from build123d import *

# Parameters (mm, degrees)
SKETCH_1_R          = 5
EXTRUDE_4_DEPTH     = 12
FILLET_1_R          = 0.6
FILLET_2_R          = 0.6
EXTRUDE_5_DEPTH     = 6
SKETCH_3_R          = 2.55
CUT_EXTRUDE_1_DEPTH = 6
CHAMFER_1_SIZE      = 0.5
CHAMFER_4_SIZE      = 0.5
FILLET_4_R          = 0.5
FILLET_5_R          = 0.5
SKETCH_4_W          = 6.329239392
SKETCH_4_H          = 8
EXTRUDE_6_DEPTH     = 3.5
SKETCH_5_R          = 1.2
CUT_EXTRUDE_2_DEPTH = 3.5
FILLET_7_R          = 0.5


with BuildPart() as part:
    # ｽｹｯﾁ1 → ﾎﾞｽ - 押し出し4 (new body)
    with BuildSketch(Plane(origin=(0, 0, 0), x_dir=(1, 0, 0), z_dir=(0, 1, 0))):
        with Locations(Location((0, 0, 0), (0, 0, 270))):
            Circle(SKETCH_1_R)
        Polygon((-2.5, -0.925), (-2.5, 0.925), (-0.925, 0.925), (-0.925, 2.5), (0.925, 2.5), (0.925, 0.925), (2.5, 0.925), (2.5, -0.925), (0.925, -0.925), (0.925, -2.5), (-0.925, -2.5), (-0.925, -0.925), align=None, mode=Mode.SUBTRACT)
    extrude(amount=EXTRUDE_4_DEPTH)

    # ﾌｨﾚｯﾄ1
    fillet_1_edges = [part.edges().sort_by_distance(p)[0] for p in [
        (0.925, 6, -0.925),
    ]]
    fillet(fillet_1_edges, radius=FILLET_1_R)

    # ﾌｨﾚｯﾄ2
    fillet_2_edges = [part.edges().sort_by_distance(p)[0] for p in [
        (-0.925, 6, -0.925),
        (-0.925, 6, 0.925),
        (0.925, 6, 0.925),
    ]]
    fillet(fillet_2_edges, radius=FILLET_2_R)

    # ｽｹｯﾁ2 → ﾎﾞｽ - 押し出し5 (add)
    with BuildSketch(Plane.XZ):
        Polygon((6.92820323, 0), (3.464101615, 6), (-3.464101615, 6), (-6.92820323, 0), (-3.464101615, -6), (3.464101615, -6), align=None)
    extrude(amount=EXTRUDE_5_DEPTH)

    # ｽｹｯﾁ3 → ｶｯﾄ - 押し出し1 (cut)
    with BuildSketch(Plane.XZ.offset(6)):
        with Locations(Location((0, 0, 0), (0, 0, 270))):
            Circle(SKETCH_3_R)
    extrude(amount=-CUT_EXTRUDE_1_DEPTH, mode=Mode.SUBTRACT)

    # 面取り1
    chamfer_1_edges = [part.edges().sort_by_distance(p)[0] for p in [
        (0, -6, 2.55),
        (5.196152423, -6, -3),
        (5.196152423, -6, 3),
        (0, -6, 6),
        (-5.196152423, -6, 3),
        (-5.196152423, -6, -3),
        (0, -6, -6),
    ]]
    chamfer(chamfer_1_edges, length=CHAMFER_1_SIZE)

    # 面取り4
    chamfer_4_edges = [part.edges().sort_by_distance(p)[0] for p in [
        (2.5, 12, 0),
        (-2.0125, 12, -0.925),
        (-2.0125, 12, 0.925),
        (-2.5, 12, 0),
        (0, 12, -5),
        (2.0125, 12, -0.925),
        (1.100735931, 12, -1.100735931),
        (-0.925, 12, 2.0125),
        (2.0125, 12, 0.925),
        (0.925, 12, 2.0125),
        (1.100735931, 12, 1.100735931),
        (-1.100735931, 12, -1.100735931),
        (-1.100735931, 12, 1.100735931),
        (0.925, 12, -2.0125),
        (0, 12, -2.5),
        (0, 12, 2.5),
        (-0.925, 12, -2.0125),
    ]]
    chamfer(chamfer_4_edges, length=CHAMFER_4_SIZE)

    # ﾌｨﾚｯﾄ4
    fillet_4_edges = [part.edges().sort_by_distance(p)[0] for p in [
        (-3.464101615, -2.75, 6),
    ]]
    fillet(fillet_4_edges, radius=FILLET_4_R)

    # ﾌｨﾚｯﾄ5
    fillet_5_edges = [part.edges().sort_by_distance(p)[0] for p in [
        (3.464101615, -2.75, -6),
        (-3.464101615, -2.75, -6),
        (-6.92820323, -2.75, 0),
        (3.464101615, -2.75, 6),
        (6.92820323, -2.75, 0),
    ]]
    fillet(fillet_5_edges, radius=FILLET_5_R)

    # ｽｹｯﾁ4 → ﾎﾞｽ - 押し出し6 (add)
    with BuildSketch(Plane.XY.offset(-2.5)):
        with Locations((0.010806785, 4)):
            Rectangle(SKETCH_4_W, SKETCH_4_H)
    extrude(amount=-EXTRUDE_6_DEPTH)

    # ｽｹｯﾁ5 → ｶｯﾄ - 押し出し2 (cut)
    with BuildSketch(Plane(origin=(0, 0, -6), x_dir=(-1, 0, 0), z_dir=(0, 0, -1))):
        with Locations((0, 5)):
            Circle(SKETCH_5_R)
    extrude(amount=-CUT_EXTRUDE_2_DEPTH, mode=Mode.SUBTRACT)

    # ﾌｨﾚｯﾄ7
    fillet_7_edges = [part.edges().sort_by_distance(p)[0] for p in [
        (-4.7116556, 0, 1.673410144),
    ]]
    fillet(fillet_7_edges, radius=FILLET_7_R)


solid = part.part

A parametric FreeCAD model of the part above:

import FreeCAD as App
import Part
import Sketcher
Q = App.Units.Quantity


def edges_at(feature, points):
    """Names of the edges that pass closest to the given points."""
    edges = feature.Shape.Edges
    near = lambda p: min(range(len(edges)), key=lambda i: edges[i].distToShape(Part.Vertex(*p))[0])
    return sorted({f"Edge{near(p) + 1}" for p in points})


def add_polygon(sketch, points):
    """Adds a closed chain of lines whose ends are joined by coincident constraints."""
    first, n = sketch.GeometryCount, len(points)
    for a, b in zip(points, points[1:] + points[:1]):
        sketch.addGeometry(Part.LineSegment(App.Vector(*a, 0), App.Vector(*b, 0)), False)
    for i in range(n):
        sketch.addConstraint(Sketcher.Constraint("Coincident", first + i, 2, first + (i + 1) % n, 1))

doc = App.newDocument("Part")
params = doc.addObject("Spreadsheet::Sheet", "Params")
for row, (alias, value) in enumerate([
    ("sketch1_diameter", "10 mm"),
    ("sketch1_width", "1.85 mm"),
    ("pad1_length", "12 mm"),
    ("fillet_radius", "0.6 mm"),
    ("fillet2_radius", "0.6 mm"),
    ("pad2_length", "6 mm"),
    ("sketch3_diameter", "5.1 mm"),
    ("pocket1_length", "6 mm"),
    ("chamfer_size", "0.5 mm"),
    ("chamfer2_size", "0.5 mm"),
    ("fillet3_radius", "0.5 mm"),
    ("fillet4_radius", "0.5 mm"),
    ("sketch4_height", "8 mm"),
    ("pad3_length", "3.5 mm"),
    ("sketch5_diameter", "2.4 mm"),
    ("pocket2_length", "3.5 mm"),
    ("fillet5_radius", "0.5 mm"),
], start=1):
    params.set(f"A{row}", alias)
    params.set(f"B{row}", "=" + value)
    params.setAlias(f"B{row}", alias)

body = doc.addObject("PartDesign::Body", "Body")

# Sketch on XZ plane
sketch1 = doc.addObject("Sketcher::SketchObject", "Sketch")
body.addObject(sketch1)
sketch1.AttachmentSupport = (doc.XZ_Plane, [""])
sketch1.MapMode = "FlatFace"
sketch1.addGeometry(Part.Circle(App.Vector(0, 0, 0), App.Vector(0, 0, 1), 5), False)  # 0
add_polygon(sketch1, [(-0.9, 0.9), (-2.5, 0.9), (-2.5, -0.9), (-0.9, -0.9), (-0.9, -2.5), (0.9, -2.5), (0.9, -0.9), (2.5, -0.9), (2.5, 0.9), (0.9, 0.9), (0.9, 2.5), (-0.9, 2.5)])  # lines 1-12
sketch1.addConstraint([
    Sketcher.Constraint("Horizontal", 1),
    Sketcher.Constraint("Vertical", 2),
    Sketcher.Constraint("Horizontal", 3),
    Sketcher.Constraint("Vertical", 4),
    Sketcher.Constraint("Horizontal", 5),
    Sketcher.Constraint("Vertical", 6),
    Sketcher.Constraint("Horizontal", 7),
    Sketcher.Constraint("Vertical", 8),
    Sketcher.Constraint("Horizontal", 9),
    Sketcher.Constraint("Vertical", 10),
    Sketcher.Constraint("Horizontal", 11),
    Sketcher.Constraint("Vertical", 12),
    Sketcher.Constraint("Coincident", 0, 3, -1, 1),
    Sketcher.Constraint("Symmetric", 1, 2, 7, 2, -1, 1),
    Sketcher.Constraint("Symmetric", 3, 2, 9, 2, -1, 1),
    Sketcher.Constraint("Symmetric", 5, 2, 11, 2, -1, 1),
    Sketcher.Constraint("Symmetric", 3, 2, 6, 2, -2),
    Sketcher.Constraint("Equal", 11, 2),
    Sketcher.Constraint("Equal", 9, 4),
    Sketcher.Constraint("Diameter", 0, 10.0),
    Sketcher.Constraint("DistanceX", 5, 1, 5, 2, 1.85),
    Sketcher.Constraint("DistanceX", 1, 2, -1, 1, 2.5),
])
sketch1.setExpression("Constraints[31]", "Params.sketch1_diameter")
sketch1.setExpression("Constraints[32]", "Params.sketch1_width")
pad1 = doc.addObject("PartDesign::Pad", "Pad")
body.addObject(pad1)
pad1.Profile = sketch1
pad1.setExpression("Length", "Params.pad1_length")
pad1.Reversed = True
doc.recompute()

fillet = doc.addObject("PartDesign::Fillet", "Fillet")
body.addObject(fillet)
fillet.Base = (pad1, edges_at(pad1, [(0.925, 6, -0.925)]))
fillet.setExpression("Radius", "Params.fillet_radius")
doc.recompute()

fillet2 = doc.addObject("PartDesign::Fillet", "Fillet001")
body.addObject(fillet2)
fillet2.Base = (fillet, edges_at(fillet, [(-0.925, 6, -0.925), (-0.925, 6, 0.925), (0.925, 6, 0.925)]))
fillet2.setExpression("Radius", "Params.fillet2_radius")

# Sketch on XZ plane
sketch2 = doc.addObject("Sketcher::SketchObject", "Sketch001")
body.addObject(sketch2)
sketch2.AttachmentSupport = (doc.XZ_Plane, [""])
sketch2.MapMode = "FlatFace"
add_polygon(sketch2, [(7, 0), (3, 6), (-3, 6), (-7, 0), (-3, -6), (3, -6)])  # lines 0-5
sketch2.addConstraint([
    Sketcher.Constraint("Horizontal", 1),
    Sketcher.Constraint("Horizontal", 4),
    Sketcher.Constraint("Symmetric", 0, 2, 3, 2, -1, 1),
    Sketcher.Constraint("Symmetric", 2, 2, 5, 2, -1, 1),
    Sketcher.Constraint("PointOnObject", 2, 2, -1),
    Sketcher.Constraint("Parallel", 2, 5),
    Sketcher.Constraint("Vertical", 1, 2, 3, 2),
    Sketcher.Constraint("Angle", 0, Q("120 deg")),
    Sketcher.Constraint("DistanceY", -1, 1, 0, 2, 6.0),
    Sketcher.Constraint("DistanceX", -1, 1, 0, 2, 3.464102),
])
pad2 = doc.addObject("PartDesign::Pad", "Pad001")
body.addObject(pad2)
pad2.Profile = sketch2
pad2.setExpression("Length", "Params.pad2_length")

# Sketch on XZ plane
sketch3 = doc.addObject("Sketcher::SketchObject", "Sketch002")
body.addObject(sketch3)
sketch3.AttachmentSupport = (doc.XZ_Plane, [""])
sketch3.MapMode = "FlatFace"
sketch3.AttachmentOffset = App.Placement(App.Vector(0, 0, 6), App.Rotation())
sketch3.addGeometry(Part.Circle(App.Vector(0, 0, 0), App.Vector(0, 0, 1), 2.5), False)
sketch3.addConstraint([
    Sketcher.Constraint("Coincident", 0, 3, -1, 1),
    Sketcher.Constraint("Diameter", 0, 5.1),
])
sketch3.setExpression("Constraints[1]", "Params.sketch3_diameter")
pocket1 = doc.addObject("PartDesign::Pocket", "Pocket")
body.addObject(pocket1)
pocket1.Profile = sketch3
pocket1.setExpression("Length", "Params.pocket1_length")
doc.recompute()

chamfer = doc.addObject("PartDesign::Chamfer", "Chamfer")
body.addObject(chamfer)
chamfer.Base = (pocket1, edges_at(pocket1, [
    (0, -6, 2.55),
    (5.196, -6, -3),
    (5.196, -6, 3),
    (0, -6, 6),
    (-5.196, -6, 3),
    (-5.196, -6, -3),
    (0, -6, -6),
]))
chamfer.setExpression("Size", "Params.chamfer_size")
doc.recompute()

chamfer2 = doc.addObject("PartDesign::Chamfer", "Chamfer001")
body.addObject(chamfer2)
chamfer2.Base = (chamfer, edges_at(chamfer, [
    (2.5, 12, 0),
    (-2.013, 12, -0.925),
    (-2.013, 12, 0.925),
    (-2.5, 12, 0),
    (0, 12, -5),
    (2.013, 12, -0.925),
    (1.101, 12, -1.101),
    (-0.925, 12, 2.013),
    (2.013, 12, 0.925),
    (0.925, 12, 2.013),
    (1.101, 12, 1.101),
    (-1.101, 12, -1.101),
    (-1.101, 12, 1.101),
    (0.925, 12, -2.013),
    (0, 12, -2.5),
    (0, 12, 2.5),
    (-0.925, 12, -2.013),
]))
chamfer2.setExpression("Size", "Params.chamfer2_size")
doc.recompute()

fillet3 = doc.addObject("PartDesign::Fillet", "Fillet002")
body.addObject(fillet3)
fillet3.Base = (chamfer2, edges_at(chamfer2, [(-3.464, -2.75, 6)]))
fillet3.setExpression("Radius", "Params.fillet3_radius")
doc.recompute()

fillet4 = doc.addObject("PartDesign::Fillet", "Fillet003")
body.addObject(fillet4)
fillet4.Base = (fillet3, edges_at(fillet3, [
    (3.464, -2.75, -6),
    (-3.464, -2.75, -6),
    (-6.928, -2.75, 0),
    (3.464, -2.75, 6),
    (6.928, -2.75, 0),
]))
fillet4.setExpression("Radius", "Params.fillet4_radius")

# Sketch on XY plane
sketch4 = doc.addObject("Sketcher::SketchObject", "Sketch003")
body.addObject(sketch4)
sketch4.AttachmentSupport = (doc.XY_Plane, [""])
sketch4.MapMode = "FlatFace"
sketch4.AttachmentOffset = App.Placement(App.Vector(0, 0, -2.5), App.Rotation())
add_polygon(sketch4, [(-3, 8), (-3, 0), (3, 0), (3, 8)])  # lines 0-3
sketch4.addConstraint([
    Sketcher.Constraint("Vertical", 0),
    Sketcher.Constraint("Horizontal", 1),
    Sketcher.Constraint("Vertical", 2),
    Sketcher.Constraint("Horizontal", 3),
    Sketcher.Constraint("PointOnObject", 0, 2, -1),
    Sketcher.Constraint("DistanceY", 0, 2, 0, 1, 8.0),
    Sketcher.Constraint("DistanceX", 1, 1, 1, 2, 6.329239),
    Sketcher.Constraint("DistanceX", 0, 2, -1, 1, 3.153813),
])
sketch4.setExpression("Constraints[9]", "Params.sketch4_height")
pad3 = doc.addObject("PartDesign::Pad", "Pad002")
body.addObject(pad3)
pad3.Profile = sketch4
pad3.setExpression("Length", "Params.pad3_length")
pad3.Reversed = True

# Sketch on XY plane
sketch5 = doc.addObject("Sketcher::SketchObject", "Sketch004")
body.addObject(sketch5)
sketch5.AttachmentSupport = (doc.XY_Plane, [""])
sketch5.MapMode = "FlatFace"
sketch5.AttachmentOffset = App.Placement(App.Vector(0, 0, -6), App.Rotation())
sketch5.addGeometry(Part.Circle(App.Vector(0, 5, 0), App.Vector(0, 0, 1), 1.2), False)
sketch5.addConstraint([
    Sketcher.Constraint("PointOnObject", 0, 3, -2),
    Sketcher.Constraint("Diameter", 0, 2.4),
    Sketcher.Constraint("DistanceY", -1, 1, 0, 3, 5.0),
])
sketch5.setExpression("Constraints[1]", "Params.sketch5_diameter")
pocket2 = doc.addObject("PartDesign::Pocket", "Pocket001")
body.addObject(pocket2)
pocket2.Profile = sketch5
pocket2.setExpression("Length", "Params.pocket2_length")
pocket2.Reversed = True
doc.recompute()

fillet5 = doc.addObject("PartDesign::Fillet", "Fillet004")
body.addObject(fillet5)
fillet5.Base = (pocket2, edges_at(pocket2, [(-4.712, 0, 1.673)]))
fillet5.setExpression("Radius", "Params.fillet5_radius")

doc.recompute()
